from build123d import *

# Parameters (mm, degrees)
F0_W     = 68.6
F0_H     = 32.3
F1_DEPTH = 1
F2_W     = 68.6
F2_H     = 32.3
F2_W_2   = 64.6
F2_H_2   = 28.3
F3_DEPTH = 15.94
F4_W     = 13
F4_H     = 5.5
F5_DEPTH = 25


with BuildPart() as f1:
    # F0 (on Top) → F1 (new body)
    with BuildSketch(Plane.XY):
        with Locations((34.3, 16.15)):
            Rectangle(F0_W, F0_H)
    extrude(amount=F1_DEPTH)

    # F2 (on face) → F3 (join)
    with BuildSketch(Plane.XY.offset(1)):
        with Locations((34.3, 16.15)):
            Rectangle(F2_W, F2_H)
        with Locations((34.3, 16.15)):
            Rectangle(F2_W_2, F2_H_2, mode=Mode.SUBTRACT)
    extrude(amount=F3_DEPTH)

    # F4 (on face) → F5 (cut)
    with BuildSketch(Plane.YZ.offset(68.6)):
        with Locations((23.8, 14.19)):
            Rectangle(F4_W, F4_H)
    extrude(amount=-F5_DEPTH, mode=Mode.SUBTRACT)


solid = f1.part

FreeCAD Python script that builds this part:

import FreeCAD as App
import Part
import Sketcher


def add_polygon(sketch, points):
    """Adds a closed chain of lines whose ends are joined by coincident constraints."""
    first, n = sketch.GeometryCount, len(points)
    for a, b in zip(points, points[1:] + points[:1]):
        sketch.addGeometry(Part.LineSegment(App.Vector(*a, 0), App.Vector(*b, 0)), False)
    for i in range(n):
        sketch.addConstraint(Sketcher.Constraint("Coincident", first + i, 2, first + (i + 1) % n, 1))

doc = App.newDocument("Part")
params = doc.addObject("Spreadsheet::Sheet", "Params")
for row, (alias, value) in enumerate([
    ("sketch1_width", "68.6 mm"),
    ("sketch1_height", "32.3 mm"),
    ("pad1_length", "1 mm"),
    ("sketch2_width", "68.6 mm"),
    ("sketch2_width2", "64.6 mm"),
    ("sketch2_height", "32.3 mm"),
    ("sketch2_height2", "28.3 mm"),
    ("pad2_length", "15.94 mm"),
    ("sketch3_width", "13 mm"),
    ("sketch3_height", "5.5 mm"),
    ("pocket1_length", "25 mm"),
], start=1):
    params.set(f"A{row}", alias)
    params.set(f"B{row}", "=" + value)
    params.setAlias(f"B{row}", alias)

body = doc.addObject("PartDesign::Body", "Body")

# Sketch on XY plane
sketch1 = doc.addObject("Sketcher::SketchObject", "Sketch")
body.addObject(sketch1)
sketch1.AttachmentSupport = (doc.XY_Plane, [""])
sketch1.MapMode = "FlatFace"
add_polygon(sketch1, [(0, 32), (0, 0), (69, 0), (69, 32)])  # lines 0-3
sketch1.addConstraint(Sketcher.Constraint("Vertical", 0))
sketch1.addConstraint(Sketcher.Constraint("Horizontal", 1))
sketch1.addConstraint(Sketcher.Constraint("Vertical", 2))
sketch1.addConstraint(Sketcher.Constraint("Horizontal", 3))
sketch1.addConstraint(Sketcher.Constraint("Coincident", 0, 2, -1, 1))
sketch1.addConstraint(Sketcher.Constraint("DistanceX", 1, 1, 1, 2, 68.6))
sketch1.addConstraint(Sketcher.Constraint("DistanceY", 0, 2, 0, 1, 32.3))
sketch1.setExpression("Constraints[9]", "Params.sketch1_width")
sketch1.setExpression("Constraints[10]", "Params.sketch1_height")
pad1 = doc.addObject("PartDesign::Pad", "Pad")
body.addObject(pad1)
pad1.Profile = sketch1
pad1.setExpression("Length", "Params.pad1_length")

# Sketch on XY plane
sketch2 = doc.addObject("Sketcher::SketchObject", "Sketch001")
body.addObject(sketch2)
sketch2.AttachmentSupport = (doc.XY_Plane, [""])
sketch2.MapMode = "FlatFace"
sketch2.AttachmentOffset = App.Placement(App.Vector(0, 0, 1), App.Rotation())
add_polygon(sketch2, [(0, 32), (0, 0), (69, 0), (69, 32)])  # lines 0-3
add_polygon(sketch2, [(67, 2), (2, 2), (2, 30), (67, 30)])  # lines 4-7
sketch2.addConstraint(Sketcher.Constraint("Vertical", 0))
sketch2.addConstraint(Sketcher.Constraint("Horizontal", 1))
sketch2.addConstraint(Sketcher.Constraint("Vertical", 2))
sketch2.addConstraint(Sketcher.Constraint("Horizontal", 3))
sketch2.addConstraint(Sketcher.Constraint("Horizontal", 4))
sketch2.addConstraint(Sketcher.Constraint("Vertical", 5))
sketch2.addConstraint(Sketcher.Constraint("Horizontal", 6))
sketch2.addConstraint(Sketcher.Constraint("Vertical", 7))
sketch2.addConstraint(Sketcher.Constraint("Coincident", 0, 2, -1, 1))
sketch2.addConstraint(Sketcher.Constraint("DistanceX", 1, 1, 1, 2, 68.6))
sketch2.addConstraint(Sketcher.Constraint("DistanceX", 4, 2, 4, 1, 64.6))
sketch2.addConstraint(Sketcher.Constraint("DistanceY", 0, 2, 0, 1, 32.3))
sketch2.addConstraint(Sketcher.Constraint("DistanceY", 5, 1, 5, 2, 28.3))
sketch2.addConstraint(Sketcher.Constraint("DistanceX", -1, 1, 4, 2, 2.0))
sketch2.addConstraint(Sketcher.Constraint("DistanceY", -1, 1, 4, 2, 2.0))
sketch2.setExpression("Constraints[17]", "Params.sketch2_width")
sketch2.setExpression("Constraints[18]", "Params.sketch2_width2")
sketch2.setExpression("Constraints[19]", "Params.sketch2_height")
sketch2.setExpression("Constraints[20]", "Params.sketch2_height2")
pad2 = doc.addObject("PartDesign::Pad", "Pad001")
body.addObject(pad2)
pad2.Profile = sketch2
pad2.setExpression("Length", "Params.pad2_length")

# Sketch on YZ plane
sketch3 = doc.addObject("Sketcher::SketchObject", "Sketch002")
body.addObject(sketch3)
sketch3.AttachmentSupport = (doc.YZ_Plane, [""])
sketch3.MapMode = "FlatFace"
sketch3.AttachmentOffset = App.Placement(App.Vector(0, 0, 68.6), App.Rotation())
add_polygon(sketch3, [(17, 17), (17, 11), (30, 11), (30, 17)])  # lines 0-3
sketch3.addConstraint(Sketcher.Constraint("Vertical", 0))
sketch3.addConstraint(Sketcher.Constraint("Horizontal", 1))
sketch3.addConstraint(Sketcher.Constraint("Vertical", 2))
sketch3.addConstraint(Sketcher.Constraint("Horizontal", 3))
sketch3.addConstraint(Sketcher.Constraint("DistanceX", 1, 1, 1, 2, 13.0))
sketch3.addConstraint(Sketcher.Constraint("DistanceY", 0, 2, 0, 1, 5.5))
sketch3.addConstraint(Sketcher.Constraint("DistanceX", -1, 1, 0, 2, 17.3))
sketch3.addConstraint(Sketcher.Constraint("DistanceY", -1, 1, 0, 2, 11.44))
sketch3.setExpression("Constraints[8]", "Params.sketch3_width")
sketch3.setExpression("Constraints[9]", "Params.sketch3_height")
pocket1 = doc.addObject("PartDesign::Pocket", "Pocket")
body.addObject(pocket1)
pocket1.Profile = sketch3
pocket1.setExpression("Length", "Params.pocket1_length")

doc.recompute()
